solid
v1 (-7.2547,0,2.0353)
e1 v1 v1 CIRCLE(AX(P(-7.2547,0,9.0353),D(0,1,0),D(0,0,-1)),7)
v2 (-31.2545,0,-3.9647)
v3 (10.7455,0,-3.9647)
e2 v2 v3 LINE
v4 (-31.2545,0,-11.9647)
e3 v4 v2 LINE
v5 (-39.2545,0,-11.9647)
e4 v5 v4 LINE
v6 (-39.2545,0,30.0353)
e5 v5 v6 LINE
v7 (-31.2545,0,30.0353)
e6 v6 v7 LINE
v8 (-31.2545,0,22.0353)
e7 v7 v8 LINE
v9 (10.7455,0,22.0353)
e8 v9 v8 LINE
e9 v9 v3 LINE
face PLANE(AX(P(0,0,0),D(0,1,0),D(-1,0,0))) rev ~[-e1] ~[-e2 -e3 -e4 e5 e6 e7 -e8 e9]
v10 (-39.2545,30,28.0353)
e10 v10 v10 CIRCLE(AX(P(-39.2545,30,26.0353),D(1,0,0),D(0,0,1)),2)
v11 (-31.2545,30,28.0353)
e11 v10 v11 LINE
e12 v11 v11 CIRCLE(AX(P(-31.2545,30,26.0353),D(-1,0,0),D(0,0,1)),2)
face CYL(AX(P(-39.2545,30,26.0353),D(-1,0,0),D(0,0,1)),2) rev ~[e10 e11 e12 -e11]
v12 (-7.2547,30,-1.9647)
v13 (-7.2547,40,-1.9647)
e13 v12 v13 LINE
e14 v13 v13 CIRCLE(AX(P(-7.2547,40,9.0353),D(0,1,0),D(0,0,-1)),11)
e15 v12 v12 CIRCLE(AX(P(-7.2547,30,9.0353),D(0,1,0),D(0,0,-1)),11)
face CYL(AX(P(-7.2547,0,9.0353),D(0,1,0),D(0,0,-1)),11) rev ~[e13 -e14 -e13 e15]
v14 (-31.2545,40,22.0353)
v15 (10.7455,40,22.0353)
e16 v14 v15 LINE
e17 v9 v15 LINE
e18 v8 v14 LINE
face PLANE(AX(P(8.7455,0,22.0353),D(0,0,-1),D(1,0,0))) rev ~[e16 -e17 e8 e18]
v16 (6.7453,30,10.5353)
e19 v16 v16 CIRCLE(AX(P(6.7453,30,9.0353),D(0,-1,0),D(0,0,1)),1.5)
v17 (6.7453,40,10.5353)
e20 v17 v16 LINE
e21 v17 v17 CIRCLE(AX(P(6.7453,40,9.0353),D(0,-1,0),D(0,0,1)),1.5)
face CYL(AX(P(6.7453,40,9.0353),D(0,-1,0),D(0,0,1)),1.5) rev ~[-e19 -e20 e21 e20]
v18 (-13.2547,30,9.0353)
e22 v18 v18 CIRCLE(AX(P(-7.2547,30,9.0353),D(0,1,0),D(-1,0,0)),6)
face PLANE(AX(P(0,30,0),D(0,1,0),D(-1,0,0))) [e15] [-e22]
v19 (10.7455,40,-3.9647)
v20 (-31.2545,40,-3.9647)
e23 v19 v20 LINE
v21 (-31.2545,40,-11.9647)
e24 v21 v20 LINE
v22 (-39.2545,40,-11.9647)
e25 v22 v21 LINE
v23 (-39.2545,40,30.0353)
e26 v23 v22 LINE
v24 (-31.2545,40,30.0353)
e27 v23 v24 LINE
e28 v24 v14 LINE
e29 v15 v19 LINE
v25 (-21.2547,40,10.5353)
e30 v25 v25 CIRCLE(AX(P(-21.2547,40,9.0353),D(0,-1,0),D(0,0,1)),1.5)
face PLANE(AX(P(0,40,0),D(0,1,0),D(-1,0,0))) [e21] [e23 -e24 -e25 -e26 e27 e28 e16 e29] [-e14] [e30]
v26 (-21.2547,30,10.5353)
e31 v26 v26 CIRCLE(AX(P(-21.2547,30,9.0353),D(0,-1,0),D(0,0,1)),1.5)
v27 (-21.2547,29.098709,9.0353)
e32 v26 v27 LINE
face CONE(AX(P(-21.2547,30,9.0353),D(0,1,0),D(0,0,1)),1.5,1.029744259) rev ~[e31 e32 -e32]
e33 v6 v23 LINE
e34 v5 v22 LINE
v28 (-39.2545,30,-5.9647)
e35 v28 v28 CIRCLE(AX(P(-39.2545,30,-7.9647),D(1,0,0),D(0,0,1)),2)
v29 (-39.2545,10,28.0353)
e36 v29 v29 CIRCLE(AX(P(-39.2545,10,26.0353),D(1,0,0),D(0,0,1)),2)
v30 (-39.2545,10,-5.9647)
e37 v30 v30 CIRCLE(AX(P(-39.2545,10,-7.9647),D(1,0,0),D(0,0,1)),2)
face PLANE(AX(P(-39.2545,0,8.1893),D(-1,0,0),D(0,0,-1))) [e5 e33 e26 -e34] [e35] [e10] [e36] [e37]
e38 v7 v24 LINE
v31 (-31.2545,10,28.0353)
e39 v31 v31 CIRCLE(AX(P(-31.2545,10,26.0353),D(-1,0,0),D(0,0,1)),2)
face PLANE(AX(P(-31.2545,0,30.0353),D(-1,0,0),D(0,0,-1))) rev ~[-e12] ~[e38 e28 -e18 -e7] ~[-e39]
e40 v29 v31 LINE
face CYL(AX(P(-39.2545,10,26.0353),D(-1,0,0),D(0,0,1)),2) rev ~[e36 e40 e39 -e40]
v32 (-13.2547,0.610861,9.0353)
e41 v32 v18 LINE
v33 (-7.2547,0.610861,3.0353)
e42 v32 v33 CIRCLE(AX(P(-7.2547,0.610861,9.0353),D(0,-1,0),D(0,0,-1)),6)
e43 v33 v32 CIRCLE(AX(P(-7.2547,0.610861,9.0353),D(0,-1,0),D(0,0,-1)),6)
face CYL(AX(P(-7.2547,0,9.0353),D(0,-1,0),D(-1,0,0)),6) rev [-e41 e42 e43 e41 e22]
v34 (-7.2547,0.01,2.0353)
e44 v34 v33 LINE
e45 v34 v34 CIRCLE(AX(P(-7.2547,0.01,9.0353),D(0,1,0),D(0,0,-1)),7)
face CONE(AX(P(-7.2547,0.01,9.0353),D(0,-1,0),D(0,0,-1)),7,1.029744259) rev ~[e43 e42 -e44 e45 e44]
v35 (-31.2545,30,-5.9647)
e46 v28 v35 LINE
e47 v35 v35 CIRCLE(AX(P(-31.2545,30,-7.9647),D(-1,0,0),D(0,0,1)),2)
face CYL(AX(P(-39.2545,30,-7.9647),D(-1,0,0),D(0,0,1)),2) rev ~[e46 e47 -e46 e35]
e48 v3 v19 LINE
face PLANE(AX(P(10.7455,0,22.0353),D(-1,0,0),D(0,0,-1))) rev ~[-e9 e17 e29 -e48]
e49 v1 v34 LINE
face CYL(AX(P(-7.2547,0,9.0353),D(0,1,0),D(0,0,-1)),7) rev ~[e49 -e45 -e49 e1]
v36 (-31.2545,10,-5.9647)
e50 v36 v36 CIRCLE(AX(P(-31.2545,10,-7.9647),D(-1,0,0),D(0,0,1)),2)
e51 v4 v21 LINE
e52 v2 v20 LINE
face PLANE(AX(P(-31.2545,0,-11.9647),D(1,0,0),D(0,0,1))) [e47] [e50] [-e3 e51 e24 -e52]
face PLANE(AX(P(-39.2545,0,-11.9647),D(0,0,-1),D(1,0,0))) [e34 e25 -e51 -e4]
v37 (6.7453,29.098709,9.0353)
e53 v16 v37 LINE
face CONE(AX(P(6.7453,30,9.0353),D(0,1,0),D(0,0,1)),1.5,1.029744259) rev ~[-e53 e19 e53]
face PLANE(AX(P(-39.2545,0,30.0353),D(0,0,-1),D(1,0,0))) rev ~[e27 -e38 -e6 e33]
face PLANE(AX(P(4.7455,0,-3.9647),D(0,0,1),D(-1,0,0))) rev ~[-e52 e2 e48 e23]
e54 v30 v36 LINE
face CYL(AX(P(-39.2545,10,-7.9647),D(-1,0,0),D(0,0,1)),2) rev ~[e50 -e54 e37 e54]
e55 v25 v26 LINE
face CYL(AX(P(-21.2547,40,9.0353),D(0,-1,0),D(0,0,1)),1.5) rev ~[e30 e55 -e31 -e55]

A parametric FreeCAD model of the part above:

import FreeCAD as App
import Part
import Sketcher


def add_polygon(sketch, points):
    """Adds a closed chain of lines whose ends are joined by coincident constraints."""
    first, n = sketch.GeometryCount, len(points)
    for a, b in zip(points, points[1:] + points[:1]):
        sketch.addGeometry(Part.LineSegment(App.Vector(*a, 0), App.Vector(*b, 0)), False)
    for i in range(n):
        sketch.addConstraint(Sketcher.Constraint("Coincident", first + i, 2, first + (i + 1) % n, 1))

doc = App.newDocument("Part")
params = doc.addObject("Spreadsheet::Sheet", "Params")
for row, (alias, value) in enumerate([
    ("sketch1_width", "8 mm"),
    ("sketch1_width2", "42 mm"),
    ("pad1_length", "40 mm"),
    ("sketch2_diameter", "22 mm"),
    ("hole_diameter", "22 mm"),
    ("hole_depth", "40 mm"),
    ("sketch3_diameter", "22 mm"),
    ("sketch3_diameter2", "12 mm"),
    ("pad2_length", "30 mm"),
    ("sketch4_diameter", "4 mm"),
    ("pocket1_length", "30 mm"),
    ("sketch5_diameter", "14 mm"),
    ("hole2_diameter", "14 mm"),
    ("hole2_depth", "0.01 mm"),
    ("sketch6_diameter", "3 mm"),
    ("hole3_diameter", "3 mm"),
    ("hole3_depth", "10 mm"),
], start=1):
    params.set(f"A{row}", alias)
    params.set(f"B{row}", "=" + value)
    params.setAlias(f"B{row}", alias)

body = doc.addObject("PartDesign::Body", "Body")

# Sketch on XZ plane
sketch1 = body.newObject("Sketcher::SketchObject", "Sketch")
sketch1.AttachmentSupport = (doc.getObject("XZ_Plane"), [""])
sketch1.MapMode = "FlatFace"
add_polygon(sketch1, [(-39.2545, 30.0353), (-31.2545, 30.0353), (-31.2545, 22.0353), (10.7455, 22.0353), (10.7455, -3.9647), (-31.2545, -3.9647), (-31.2545, -11.9647), (-39.2545, -11.9647)])  # lines 0-7
sketch1.addConstraint([
    Sketcher.Constraint("Horizontal", 0),
    Sketcher.Constraint("Vertical", 1),
    Sketcher.Constraint("Horizontal", 2),
    Sketcher.Constraint("Vertical", 3),
    Sketcher.Constraint("Horizontal", 4),
    Sketcher.Constraint("Vertical", 5),
    Sketcher.Constraint("Horizontal", 6),
    Sketcher.Constraint("Vertical", 7),
    Sketcher.Constraint("Vertical", 1, 2, 4, 2),
    Sketcher.Constraint("Equal", 6, 1),
    Sketcher.Constraint("Equal", 1, 5),
    Sketcher.Constraint("Equal", 4, 7),
    Sketcher.Constraint("DistanceX", 0, 1, 0, 2, 8.0),
    Sketcher.Constraint("DistanceX", 2, 1, 2, 2, 42.0),
    Sketcher.Constraint("DistanceX", 0, 2, -1, 1, 31.2545),
    Sketcher.Constraint("DistanceY", -1, 1, 0, 2, 30.0353),
])
sketch1.setExpression("Constraints[20]", "Params.sketch1_width")
sketch1.setExpression("Constraints[21]", "Params.sketch1_width2")
pad1 = body.newObject("PartDesign::Pad", "Pad")
pad1.Profile = sketch1
pad1.setExpression("Length", "Params.pad1_length")
pad1.Reversed = True

# Sketch on XZ plane
sketch2 = body.newObject("Sketcher::SketchObject", "Sketch001")
sketch2.AttachmentSupport = (doc.getObject("XZ_Plane"), [""])
sketch2.MapMode = "FlatFace"
sketch2.addGeometry(Part.Circle(App.Vector(-7.2547, 9.0353, 0), App.Vector(0, 0, 1), 11), False)
sketch2.addConstraint([
    Sketcher.Constraint("Diameter", 0, 22.0),
    Sketcher.Constraint("DistanceX", 0, 3, -1, 1, 7.2547),
    Sketcher.Constraint("DistanceY", -1, 1, 0, 3, 9.0353),
])
sketch2.setExpression("Constraints[0]", "Params.sketch2_diameter")
doc.recompute()
hole = body.newObject("PartDesign::Hole", "Hole")
hole.Profile = sketch2
hole.ThreadType = "None"
hole.setExpression("Diameter", "Params.hole_diameter")
hole.DepthType = "Dimension"
hole.setExpression("Depth", "Params.hole_depth")
hole.DrillPoint = "Angled"
hole.DrillPointAngle = 118

# Sketch on XZ plane
sketch3 = body.newObject("Sketcher::SketchObject", "Sketch002")
sketch3.AttachmentSupport = (doc.getObject("XZ_Plane"), [""])
sketch3.MapMode = "FlatFace"
sketch3.addGeometry([
    Part.Circle(App.Vector(-7.2547, 9.0353, 0), App.Vector(0, 0, 1), 11),
    Part.Circle(App.Vector(-7.2547, 9.0353, 0), App.Vector(0, 0, 1), 6),
], False)
sketch3.addConstraint([
    Sketcher.Constraint("Coincident", 1, 3, 0, 3),
    Sketcher.Constraint("Diameter", 0, 22.0),
    Sketcher.Constraint("Diameter", 1, 12.0),
    Sketcher.Constraint("DistanceX", 0, 3, -1, 1, 7.2547),
    Sketcher.Constraint("DistanceY", -1, 1, 0, 3, 9.0353),
])
sketch3.setExpression("Constraints[1]", "Params.sketch3_diameter")
sketch3.setExpression("Constraints[2]", "Params.sketch3_diameter2")
pad2 = body.newObject("PartDesign::Pad", "Pad001")
pad2.Profile = sketch3
pad2.setExpression("Length", "Params.pad2_length")
pad2.Reversed = True

# Sketch on YZ plane
sketch4 = body.newObject("Sketcher::SketchObject", "Sketch003")
sketch4.AttachmentSupport = (doc.getObject("YZ_Plane"), [""])
sketch4.MapMode = "FlatFace"
sketch4.AttachmentOffset = App.Placement(App.Vector(0, 0, -39.2545), App.Rotation())
sketch4.addGeometry([
    Part.Circle(App.Vector(10, 26.0353, 0), App.Vector(0, 0, 1), 2),
    Part.Circle(App.Vector(30, 26.0353, 0), App.Vector(0, 0, 1), 2),
    Part.Circle(App.Vector(30, -7.9647, 0), App.Vector(0, 0, 1), 2),
    Part.Circle(App.Vector(10, -7.9647, 0), App.Vector(0, 0, 1), 2),
], False)
sketch4.addConstraint([
    Sketcher.Constraint("Equal", 0, 1),
    Sketcher.Constraint("Equal", 1, 2),
    Sketcher.Constraint("Equal", 2, 3),
    Sketcher.Constraint("Horizontal", 0, 3, 1, 3),
    Sketcher.Constraint("Horizontal", 2, 3, 3, 3),
    Sketcher.Constraint("Vertical", 1, 3, 2, 3),
    Sketcher.Constraint("Vertical", 0, 3, 3, 3),
    Sketcher.Constraint("Diameter", 0, 4.0),
    Sketcher.Constraint("DistanceX", -1, 1, 0, 3, 10.0),
    Sketcher.Constraint("DistanceX", -1, 1, 1, 3, 30.0),
    Sketcher.Constraint("DistanceY", 2, 3, 1, 3, 34.0),
    Sketcher.Constraint("DistanceY", -1, 1, 0, 3, 26.0353),
])
sketch4.setExpression("Constraints[7]", "Params.sketch4_diameter")
pocket1 = body.newObject("PartDesign::Pocket", "Pocket")
pocket1.Profile = sketch4
pocket1.setExpression("Length", "Params.pocket1_length")
pocket1.Reversed = True

# Sketch on XZ plane
sketch5 = body.newObject("Sketcher::SketchObject", "Sketch004")
sketch5.AttachmentSupport = (doc.getObject("XZ_Plane"), [""])
sketch5.MapMode = "FlatFace"
sketch5.addGeometry(Part.Circle(App.Vector(-7.2547, 9.0353, 0), App.Vector(0, 0, 1), 7), False)
sketch5.addConstraint([
    Sketcher.Constraint("Diameter", 0, 14.0),
    Sketcher.Constraint("DistanceX", 0, 3, -1, 1, 7.2547),
    Sketcher.Constraint("DistanceY", -1, 1, 0, 3, 9.0353),
])
sketch5.setExpression("Constraints[0]", "Params.sketch5_diameter")
doc.recompute()
hole2 = body.newObject("PartDesign::Hole", "Hole001")
hole2.Profile = sketch5
hole2.ThreadType = "None"
hole2.setExpression("Diameter", "Params.hole2_diameter")
hole2.DepthType = "Dimension"
hole2.setExpression("Depth", "Params.hole2_depth")
hole2.DrillPoint = "Angled"
hole2.DrillPointAngle = 118

# Sketch on XZ plane
sketch6 = body.newObject("Sketcher::SketchObject", "Sketch005")
sketch6.AttachmentSupport = (doc.getObject("XZ_Plane"), [""])
sketch6.MapMode = "FlatFace"
sketch6.AttachmentOffset = App.Placement(App.Vector(0, 0, -40), App.Rotation())
sketch6.addGeometry([
    Part.Circle(App.Vector(-21.2547, 9.0353, 0), App.Vector(0, 0, 1), 1.5),
    Part.Circle(App.Vector(6.7453, 9.0353, 0), App.Vector(0, 0, 1), 1.5),
], False)
sketch6.addConstraint([
    Sketcher.Constraint("Equal", 0, 1),
    Sketcher.Constraint("Horizontal", 0, 3, 1, 3),
    Sketcher.Constraint("Diameter", 0, 3.0),
    Sketcher.Constraint("DistanceX", 0, 3, 1, 3, 28.0),
    Sketcher.Constraint("DistanceX", 0, 3, -1, 1, 21.2547),
    Sketcher.Constraint("DistanceY", -1, 1, 0, 3, 9.0353),
])
sketch6.setExpression("Constraints[2]", "Params.sketch6_diameter")
doc.recompute()
hole3 = body.newObject("PartDesign::Hole", "Hole002")
hole3.Profile = sketch6
hole3.ThreadType = "None"
hole3.setExpression("Diameter", "Params.hole3_diameter")
hole3.DepthType = "Dimension"
hole3.setExpression("Depth", "Params.hole3_depth")
hole3.DrillPoint = "Angled"
hole3.DrillPointAngle = 118
hole3.Reversed = True

doc.recompute()
